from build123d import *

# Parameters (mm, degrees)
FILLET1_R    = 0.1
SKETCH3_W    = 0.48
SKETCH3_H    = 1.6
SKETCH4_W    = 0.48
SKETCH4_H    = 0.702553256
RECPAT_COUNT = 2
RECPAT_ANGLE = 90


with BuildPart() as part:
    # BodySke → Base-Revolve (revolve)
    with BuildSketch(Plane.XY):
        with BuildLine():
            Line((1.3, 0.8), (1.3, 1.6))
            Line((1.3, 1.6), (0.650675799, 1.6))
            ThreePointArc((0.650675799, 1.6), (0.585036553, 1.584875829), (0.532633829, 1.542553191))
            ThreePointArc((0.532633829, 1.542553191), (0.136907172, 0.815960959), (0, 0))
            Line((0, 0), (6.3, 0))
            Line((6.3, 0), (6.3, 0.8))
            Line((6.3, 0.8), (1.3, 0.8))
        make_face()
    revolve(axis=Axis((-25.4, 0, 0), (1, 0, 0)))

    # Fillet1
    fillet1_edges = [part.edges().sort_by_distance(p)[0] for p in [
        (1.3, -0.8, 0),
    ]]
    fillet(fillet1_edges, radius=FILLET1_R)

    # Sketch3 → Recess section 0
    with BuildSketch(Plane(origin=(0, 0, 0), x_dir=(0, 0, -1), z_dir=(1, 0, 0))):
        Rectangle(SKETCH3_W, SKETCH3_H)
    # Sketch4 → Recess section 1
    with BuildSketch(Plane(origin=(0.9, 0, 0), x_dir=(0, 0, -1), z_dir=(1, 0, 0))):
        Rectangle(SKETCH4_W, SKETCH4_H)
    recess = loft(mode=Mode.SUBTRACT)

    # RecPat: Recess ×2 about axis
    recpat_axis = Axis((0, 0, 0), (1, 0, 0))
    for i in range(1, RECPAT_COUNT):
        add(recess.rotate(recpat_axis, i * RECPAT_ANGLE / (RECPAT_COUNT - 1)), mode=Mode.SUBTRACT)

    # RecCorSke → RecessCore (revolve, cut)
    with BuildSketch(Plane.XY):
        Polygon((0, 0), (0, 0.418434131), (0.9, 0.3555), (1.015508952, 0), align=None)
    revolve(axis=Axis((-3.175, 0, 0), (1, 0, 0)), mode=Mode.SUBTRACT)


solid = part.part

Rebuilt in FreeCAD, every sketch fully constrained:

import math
import FreeCAD as App
import Part
import Sketcher

V = App.Vector
Q = App.Units.Quantity


def edges_at(feature, points):
    """Names of the edges that pass closest to the given points."""
    edges = feature.Shape.Edges
    near = lambda p: min(range(len(edges)), key=lambda i: edges[i].distToShape(Part.Vertex(*p))[0])
    return sorted({f"Edge{near(p) + 1}" for p in points})


def add_polygon(sketch, points):
    """Adds a closed chain of lines whose ends are joined by coincident constraints."""
    first, n = sketch.GeometryCount, len(points)
    for a, b in zip(points, points[1:] + points[:1]):
        sketch.addGeometry(Part.LineSegment(App.Vector(*a, 0), App.Vector(*b, 0)), False)
    for i in range(n):
        sketch.addConstraint(Sketcher.Constraint("Coincident", first + i, 2, first + (i + 1) % n, 1))

doc = App.newDocument("Part")
body = doc.addObject("PartDesign::Body", "Body")

sketch1 = body.newObject("Sketcher::SketchObject", "Sketch")
sketch1.AttachmentSupport = (doc.getObject("XY_Plane"), [""])
sketch1.MapMode = "FlatFace"
sketch1.addGeometry([
    Part.LineSegment(V(1.3, 0.8, 0), V(1.3, 1.6, 0)),
    Part.LineSegment(V(1.3, 1.6, 0), V(0.65, 1.6, 0)),
    Part.ArcOfCircle(Part.Circle(V(0.65, 1.45, 0), V(0, 0, 1), 0.15), math.radians(90), math.radians(142)),
    Part.ArcOfCircle(Part.Circle(V(2.5, 0, 0), V(0, 0, 1), 2.5), math.radians(142), math.radians(180)),
    Part.LineSegment(V(0, 0, 0), V(6.3, 0, 0)),
    Part.LineSegment(V(6.3, 0, 0), V(6.3, 0.8, 0)),
    Part.LineSegment(V(6.3, 0.8, 0), V(1.3, 0.8, 0)),
], False)
sketch1.addConstraint([
    Sketcher.Constraint("Coincident", 0, 2, 1, 1),
    Sketcher.Constraint("Tangent", 1, 2, 2, 1),
    Sketcher.Constraint("Tangent", 2, 2, 3, 1),
    Sketcher.Constraint("Coincident", 3, 2, 4, 1),
    Sketcher.Constraint("Coincident", 4, 2, 5, 1),
    Sketcher.Constraint("Coincident", 5, 2, 6, 1),
    Sketcher.Constraint("Coincident", 6, 2, 0, 1),
    Sketcher.Constraint("Vertical", 0),
    Sketcher.Constraint("Horizontal", 1),
    Sketcher.Constraint("Horizontal", 4),
    Sketcher.Constraint("Vertical", 5),
    Sketcher.Constraint("Horizontal", 6),
    Sketcher.Constraint("Coincident", 3, 2, -1, 1),
    Sketcher.Constraint("PointOnObject", 3, 3, -1),
    Sketcher.Constraint("Equal", 0, 5),
    Sketcher.Constraint("Radius", 3, Q("2.5 mm")),
    Sketcher.Constraint("DistanceX", 6, 2, 6, 1, Q("5 mm")),
    Sketcher.Constraint("Radius", 2, Q("0.15 mm")),
    Sketcher.Constraint("DistanceX", 4, 1, 4, 2, Q("6.3 mm")),
    Sketcher.Constraint("DistanceY", 0, 1, 0, 2, Q("0.8 mm")),
])
revolution = body.newObject("PartDesign::Revolution", "Revolution")
revolution.Profile = sketch1
revolution.ReferenceAxis = (sketch1, ["H_Axis"])
revolution.Angle = 360
doc.recompute()

fillet = body.newObject("PartDesign::Fillet", "Fillet")
fillet.Base = (revolution, edges_at(revolution, [(1.3, -0.8, 0)]))
fillet.Radius = 0.1

sketch2 = body.newObject("Sketcher::SketchObject", "Sketch001")
sketch2.AttachmentSupport = (doc.getObject("YZ_Plane"), [""])
sketch2.MapMode = "FlatFace"
add_polygon(sketch2, [(0.8, 0.24), (-0.8, 0.24), (-0.8, -0.24), (0.8, -0.24)])
sketch2.addConstraint([
    Sketcher.Constraint("Horizontal", 0),
    Sketcher.Constraint("Vertical", 1),
    Sketcher.Constraint("Horizontal", 2),
    Sketcher.Constraint("Vertical", 3),
    Sketcher.Constraint("Symmetric", 0, 2, 2, 2, -1, 1),
    Sketcher.Constraint("DistanceX", 0, 2, 0, 1, Q("1.6 mm")),
    Sketcher.Constraint("DistanceY", 1, 2, 1, 1, Q("0.48 mm")),
])

sketch3 = body.newObject("Sketcher::SketchObject", "Sketch002")
sketch3.AttachmentSupport = (doc.getObject("YZ_Plane"), [""])
sketch3.MapMode = "FlatFace"
sketch3.AttachmentOffset = App.Placement(V(0, 0, 0.9), App.Rotation())
add_polygon(sketch3, [(0.35, 0.24), (-0.35, 0.24), (-0.35, -0.24), (0.35, -0.24)])
sketch3.addConstraint([
    Sketcher.Constraint("Horizontal", 0),
    Sketcher.Constraint("Vertical", 1),
    Sketcher.Constraint("Horizontal", 2),
    Sketcher.Constraint("Vertical", 3),
    Sketcher.Constraint("Symmetric", 0, 2, 2, 2, -1, 1),
    Sketcher.Constraint("DistanceY", 1, 2, 1, 1, Q("0.48 mm")),
    Sketcher.Constraint("DistanceX", 0, 2, 0, 1, Q("0.702553 mm")),
])

subtractiveloft = body.newObject("PartDesign::SubtractiveLoft", "SubtractiveLoft")
subtractiveloft.Profile = sketch2
subtractiveloft.Sections = [sketch3]
doc.recompute()

polarpattern = body.newObject("PartDesign::PolarPattern", "PolarPattern")
polarpattern.Originals = [subtractiveloft]
polarpattern.Axis = (doc.getObject("X_Axis"), [""])
polarpattern.Angle = 90
polarpattern.Occurrences = 2
body.Tip = polarpattern

sketch4 = body.newObject("Sketcher::SketchObject", "Sketch003")
sketch4.AttachmentSupport = (doc.getObject("XY_Plane"), [""])
sketch4.MapMode = "FlatFace"
add_polygon(sketch4, [(0, 0.42), (0, 0), (1.02, 0), (0.9, 0.36)])
sketch4.addConstraint([
    Sketcher.Constraint("Vertical", 0),
    Sketcher.Constraint("Horizontal", 1),
    Sketcher.Constraint("Coincident", 0, 2, -1, 1),
    Sketcher.Constraint("Angle", 2, Q("108 deg")),
    Sketcher.Constraint("Angle", 3, Q("176 deg")),
    Sketcher.Constraint("DistanceX", -1, 1, 2, 2, Q("0.9 mm")),
    Sketcher.Constraint("DistanceX", 1, 1, 1, 2, Q("1.015509 mm")),
])
groove = body.newObject("PartDesign::Groove", "Groove")
groove.Profile = sketch4
groove.ReferenceAxis = (sketch4, ["H_Axis"])
groove.Angle = 360

doc.recompute()
